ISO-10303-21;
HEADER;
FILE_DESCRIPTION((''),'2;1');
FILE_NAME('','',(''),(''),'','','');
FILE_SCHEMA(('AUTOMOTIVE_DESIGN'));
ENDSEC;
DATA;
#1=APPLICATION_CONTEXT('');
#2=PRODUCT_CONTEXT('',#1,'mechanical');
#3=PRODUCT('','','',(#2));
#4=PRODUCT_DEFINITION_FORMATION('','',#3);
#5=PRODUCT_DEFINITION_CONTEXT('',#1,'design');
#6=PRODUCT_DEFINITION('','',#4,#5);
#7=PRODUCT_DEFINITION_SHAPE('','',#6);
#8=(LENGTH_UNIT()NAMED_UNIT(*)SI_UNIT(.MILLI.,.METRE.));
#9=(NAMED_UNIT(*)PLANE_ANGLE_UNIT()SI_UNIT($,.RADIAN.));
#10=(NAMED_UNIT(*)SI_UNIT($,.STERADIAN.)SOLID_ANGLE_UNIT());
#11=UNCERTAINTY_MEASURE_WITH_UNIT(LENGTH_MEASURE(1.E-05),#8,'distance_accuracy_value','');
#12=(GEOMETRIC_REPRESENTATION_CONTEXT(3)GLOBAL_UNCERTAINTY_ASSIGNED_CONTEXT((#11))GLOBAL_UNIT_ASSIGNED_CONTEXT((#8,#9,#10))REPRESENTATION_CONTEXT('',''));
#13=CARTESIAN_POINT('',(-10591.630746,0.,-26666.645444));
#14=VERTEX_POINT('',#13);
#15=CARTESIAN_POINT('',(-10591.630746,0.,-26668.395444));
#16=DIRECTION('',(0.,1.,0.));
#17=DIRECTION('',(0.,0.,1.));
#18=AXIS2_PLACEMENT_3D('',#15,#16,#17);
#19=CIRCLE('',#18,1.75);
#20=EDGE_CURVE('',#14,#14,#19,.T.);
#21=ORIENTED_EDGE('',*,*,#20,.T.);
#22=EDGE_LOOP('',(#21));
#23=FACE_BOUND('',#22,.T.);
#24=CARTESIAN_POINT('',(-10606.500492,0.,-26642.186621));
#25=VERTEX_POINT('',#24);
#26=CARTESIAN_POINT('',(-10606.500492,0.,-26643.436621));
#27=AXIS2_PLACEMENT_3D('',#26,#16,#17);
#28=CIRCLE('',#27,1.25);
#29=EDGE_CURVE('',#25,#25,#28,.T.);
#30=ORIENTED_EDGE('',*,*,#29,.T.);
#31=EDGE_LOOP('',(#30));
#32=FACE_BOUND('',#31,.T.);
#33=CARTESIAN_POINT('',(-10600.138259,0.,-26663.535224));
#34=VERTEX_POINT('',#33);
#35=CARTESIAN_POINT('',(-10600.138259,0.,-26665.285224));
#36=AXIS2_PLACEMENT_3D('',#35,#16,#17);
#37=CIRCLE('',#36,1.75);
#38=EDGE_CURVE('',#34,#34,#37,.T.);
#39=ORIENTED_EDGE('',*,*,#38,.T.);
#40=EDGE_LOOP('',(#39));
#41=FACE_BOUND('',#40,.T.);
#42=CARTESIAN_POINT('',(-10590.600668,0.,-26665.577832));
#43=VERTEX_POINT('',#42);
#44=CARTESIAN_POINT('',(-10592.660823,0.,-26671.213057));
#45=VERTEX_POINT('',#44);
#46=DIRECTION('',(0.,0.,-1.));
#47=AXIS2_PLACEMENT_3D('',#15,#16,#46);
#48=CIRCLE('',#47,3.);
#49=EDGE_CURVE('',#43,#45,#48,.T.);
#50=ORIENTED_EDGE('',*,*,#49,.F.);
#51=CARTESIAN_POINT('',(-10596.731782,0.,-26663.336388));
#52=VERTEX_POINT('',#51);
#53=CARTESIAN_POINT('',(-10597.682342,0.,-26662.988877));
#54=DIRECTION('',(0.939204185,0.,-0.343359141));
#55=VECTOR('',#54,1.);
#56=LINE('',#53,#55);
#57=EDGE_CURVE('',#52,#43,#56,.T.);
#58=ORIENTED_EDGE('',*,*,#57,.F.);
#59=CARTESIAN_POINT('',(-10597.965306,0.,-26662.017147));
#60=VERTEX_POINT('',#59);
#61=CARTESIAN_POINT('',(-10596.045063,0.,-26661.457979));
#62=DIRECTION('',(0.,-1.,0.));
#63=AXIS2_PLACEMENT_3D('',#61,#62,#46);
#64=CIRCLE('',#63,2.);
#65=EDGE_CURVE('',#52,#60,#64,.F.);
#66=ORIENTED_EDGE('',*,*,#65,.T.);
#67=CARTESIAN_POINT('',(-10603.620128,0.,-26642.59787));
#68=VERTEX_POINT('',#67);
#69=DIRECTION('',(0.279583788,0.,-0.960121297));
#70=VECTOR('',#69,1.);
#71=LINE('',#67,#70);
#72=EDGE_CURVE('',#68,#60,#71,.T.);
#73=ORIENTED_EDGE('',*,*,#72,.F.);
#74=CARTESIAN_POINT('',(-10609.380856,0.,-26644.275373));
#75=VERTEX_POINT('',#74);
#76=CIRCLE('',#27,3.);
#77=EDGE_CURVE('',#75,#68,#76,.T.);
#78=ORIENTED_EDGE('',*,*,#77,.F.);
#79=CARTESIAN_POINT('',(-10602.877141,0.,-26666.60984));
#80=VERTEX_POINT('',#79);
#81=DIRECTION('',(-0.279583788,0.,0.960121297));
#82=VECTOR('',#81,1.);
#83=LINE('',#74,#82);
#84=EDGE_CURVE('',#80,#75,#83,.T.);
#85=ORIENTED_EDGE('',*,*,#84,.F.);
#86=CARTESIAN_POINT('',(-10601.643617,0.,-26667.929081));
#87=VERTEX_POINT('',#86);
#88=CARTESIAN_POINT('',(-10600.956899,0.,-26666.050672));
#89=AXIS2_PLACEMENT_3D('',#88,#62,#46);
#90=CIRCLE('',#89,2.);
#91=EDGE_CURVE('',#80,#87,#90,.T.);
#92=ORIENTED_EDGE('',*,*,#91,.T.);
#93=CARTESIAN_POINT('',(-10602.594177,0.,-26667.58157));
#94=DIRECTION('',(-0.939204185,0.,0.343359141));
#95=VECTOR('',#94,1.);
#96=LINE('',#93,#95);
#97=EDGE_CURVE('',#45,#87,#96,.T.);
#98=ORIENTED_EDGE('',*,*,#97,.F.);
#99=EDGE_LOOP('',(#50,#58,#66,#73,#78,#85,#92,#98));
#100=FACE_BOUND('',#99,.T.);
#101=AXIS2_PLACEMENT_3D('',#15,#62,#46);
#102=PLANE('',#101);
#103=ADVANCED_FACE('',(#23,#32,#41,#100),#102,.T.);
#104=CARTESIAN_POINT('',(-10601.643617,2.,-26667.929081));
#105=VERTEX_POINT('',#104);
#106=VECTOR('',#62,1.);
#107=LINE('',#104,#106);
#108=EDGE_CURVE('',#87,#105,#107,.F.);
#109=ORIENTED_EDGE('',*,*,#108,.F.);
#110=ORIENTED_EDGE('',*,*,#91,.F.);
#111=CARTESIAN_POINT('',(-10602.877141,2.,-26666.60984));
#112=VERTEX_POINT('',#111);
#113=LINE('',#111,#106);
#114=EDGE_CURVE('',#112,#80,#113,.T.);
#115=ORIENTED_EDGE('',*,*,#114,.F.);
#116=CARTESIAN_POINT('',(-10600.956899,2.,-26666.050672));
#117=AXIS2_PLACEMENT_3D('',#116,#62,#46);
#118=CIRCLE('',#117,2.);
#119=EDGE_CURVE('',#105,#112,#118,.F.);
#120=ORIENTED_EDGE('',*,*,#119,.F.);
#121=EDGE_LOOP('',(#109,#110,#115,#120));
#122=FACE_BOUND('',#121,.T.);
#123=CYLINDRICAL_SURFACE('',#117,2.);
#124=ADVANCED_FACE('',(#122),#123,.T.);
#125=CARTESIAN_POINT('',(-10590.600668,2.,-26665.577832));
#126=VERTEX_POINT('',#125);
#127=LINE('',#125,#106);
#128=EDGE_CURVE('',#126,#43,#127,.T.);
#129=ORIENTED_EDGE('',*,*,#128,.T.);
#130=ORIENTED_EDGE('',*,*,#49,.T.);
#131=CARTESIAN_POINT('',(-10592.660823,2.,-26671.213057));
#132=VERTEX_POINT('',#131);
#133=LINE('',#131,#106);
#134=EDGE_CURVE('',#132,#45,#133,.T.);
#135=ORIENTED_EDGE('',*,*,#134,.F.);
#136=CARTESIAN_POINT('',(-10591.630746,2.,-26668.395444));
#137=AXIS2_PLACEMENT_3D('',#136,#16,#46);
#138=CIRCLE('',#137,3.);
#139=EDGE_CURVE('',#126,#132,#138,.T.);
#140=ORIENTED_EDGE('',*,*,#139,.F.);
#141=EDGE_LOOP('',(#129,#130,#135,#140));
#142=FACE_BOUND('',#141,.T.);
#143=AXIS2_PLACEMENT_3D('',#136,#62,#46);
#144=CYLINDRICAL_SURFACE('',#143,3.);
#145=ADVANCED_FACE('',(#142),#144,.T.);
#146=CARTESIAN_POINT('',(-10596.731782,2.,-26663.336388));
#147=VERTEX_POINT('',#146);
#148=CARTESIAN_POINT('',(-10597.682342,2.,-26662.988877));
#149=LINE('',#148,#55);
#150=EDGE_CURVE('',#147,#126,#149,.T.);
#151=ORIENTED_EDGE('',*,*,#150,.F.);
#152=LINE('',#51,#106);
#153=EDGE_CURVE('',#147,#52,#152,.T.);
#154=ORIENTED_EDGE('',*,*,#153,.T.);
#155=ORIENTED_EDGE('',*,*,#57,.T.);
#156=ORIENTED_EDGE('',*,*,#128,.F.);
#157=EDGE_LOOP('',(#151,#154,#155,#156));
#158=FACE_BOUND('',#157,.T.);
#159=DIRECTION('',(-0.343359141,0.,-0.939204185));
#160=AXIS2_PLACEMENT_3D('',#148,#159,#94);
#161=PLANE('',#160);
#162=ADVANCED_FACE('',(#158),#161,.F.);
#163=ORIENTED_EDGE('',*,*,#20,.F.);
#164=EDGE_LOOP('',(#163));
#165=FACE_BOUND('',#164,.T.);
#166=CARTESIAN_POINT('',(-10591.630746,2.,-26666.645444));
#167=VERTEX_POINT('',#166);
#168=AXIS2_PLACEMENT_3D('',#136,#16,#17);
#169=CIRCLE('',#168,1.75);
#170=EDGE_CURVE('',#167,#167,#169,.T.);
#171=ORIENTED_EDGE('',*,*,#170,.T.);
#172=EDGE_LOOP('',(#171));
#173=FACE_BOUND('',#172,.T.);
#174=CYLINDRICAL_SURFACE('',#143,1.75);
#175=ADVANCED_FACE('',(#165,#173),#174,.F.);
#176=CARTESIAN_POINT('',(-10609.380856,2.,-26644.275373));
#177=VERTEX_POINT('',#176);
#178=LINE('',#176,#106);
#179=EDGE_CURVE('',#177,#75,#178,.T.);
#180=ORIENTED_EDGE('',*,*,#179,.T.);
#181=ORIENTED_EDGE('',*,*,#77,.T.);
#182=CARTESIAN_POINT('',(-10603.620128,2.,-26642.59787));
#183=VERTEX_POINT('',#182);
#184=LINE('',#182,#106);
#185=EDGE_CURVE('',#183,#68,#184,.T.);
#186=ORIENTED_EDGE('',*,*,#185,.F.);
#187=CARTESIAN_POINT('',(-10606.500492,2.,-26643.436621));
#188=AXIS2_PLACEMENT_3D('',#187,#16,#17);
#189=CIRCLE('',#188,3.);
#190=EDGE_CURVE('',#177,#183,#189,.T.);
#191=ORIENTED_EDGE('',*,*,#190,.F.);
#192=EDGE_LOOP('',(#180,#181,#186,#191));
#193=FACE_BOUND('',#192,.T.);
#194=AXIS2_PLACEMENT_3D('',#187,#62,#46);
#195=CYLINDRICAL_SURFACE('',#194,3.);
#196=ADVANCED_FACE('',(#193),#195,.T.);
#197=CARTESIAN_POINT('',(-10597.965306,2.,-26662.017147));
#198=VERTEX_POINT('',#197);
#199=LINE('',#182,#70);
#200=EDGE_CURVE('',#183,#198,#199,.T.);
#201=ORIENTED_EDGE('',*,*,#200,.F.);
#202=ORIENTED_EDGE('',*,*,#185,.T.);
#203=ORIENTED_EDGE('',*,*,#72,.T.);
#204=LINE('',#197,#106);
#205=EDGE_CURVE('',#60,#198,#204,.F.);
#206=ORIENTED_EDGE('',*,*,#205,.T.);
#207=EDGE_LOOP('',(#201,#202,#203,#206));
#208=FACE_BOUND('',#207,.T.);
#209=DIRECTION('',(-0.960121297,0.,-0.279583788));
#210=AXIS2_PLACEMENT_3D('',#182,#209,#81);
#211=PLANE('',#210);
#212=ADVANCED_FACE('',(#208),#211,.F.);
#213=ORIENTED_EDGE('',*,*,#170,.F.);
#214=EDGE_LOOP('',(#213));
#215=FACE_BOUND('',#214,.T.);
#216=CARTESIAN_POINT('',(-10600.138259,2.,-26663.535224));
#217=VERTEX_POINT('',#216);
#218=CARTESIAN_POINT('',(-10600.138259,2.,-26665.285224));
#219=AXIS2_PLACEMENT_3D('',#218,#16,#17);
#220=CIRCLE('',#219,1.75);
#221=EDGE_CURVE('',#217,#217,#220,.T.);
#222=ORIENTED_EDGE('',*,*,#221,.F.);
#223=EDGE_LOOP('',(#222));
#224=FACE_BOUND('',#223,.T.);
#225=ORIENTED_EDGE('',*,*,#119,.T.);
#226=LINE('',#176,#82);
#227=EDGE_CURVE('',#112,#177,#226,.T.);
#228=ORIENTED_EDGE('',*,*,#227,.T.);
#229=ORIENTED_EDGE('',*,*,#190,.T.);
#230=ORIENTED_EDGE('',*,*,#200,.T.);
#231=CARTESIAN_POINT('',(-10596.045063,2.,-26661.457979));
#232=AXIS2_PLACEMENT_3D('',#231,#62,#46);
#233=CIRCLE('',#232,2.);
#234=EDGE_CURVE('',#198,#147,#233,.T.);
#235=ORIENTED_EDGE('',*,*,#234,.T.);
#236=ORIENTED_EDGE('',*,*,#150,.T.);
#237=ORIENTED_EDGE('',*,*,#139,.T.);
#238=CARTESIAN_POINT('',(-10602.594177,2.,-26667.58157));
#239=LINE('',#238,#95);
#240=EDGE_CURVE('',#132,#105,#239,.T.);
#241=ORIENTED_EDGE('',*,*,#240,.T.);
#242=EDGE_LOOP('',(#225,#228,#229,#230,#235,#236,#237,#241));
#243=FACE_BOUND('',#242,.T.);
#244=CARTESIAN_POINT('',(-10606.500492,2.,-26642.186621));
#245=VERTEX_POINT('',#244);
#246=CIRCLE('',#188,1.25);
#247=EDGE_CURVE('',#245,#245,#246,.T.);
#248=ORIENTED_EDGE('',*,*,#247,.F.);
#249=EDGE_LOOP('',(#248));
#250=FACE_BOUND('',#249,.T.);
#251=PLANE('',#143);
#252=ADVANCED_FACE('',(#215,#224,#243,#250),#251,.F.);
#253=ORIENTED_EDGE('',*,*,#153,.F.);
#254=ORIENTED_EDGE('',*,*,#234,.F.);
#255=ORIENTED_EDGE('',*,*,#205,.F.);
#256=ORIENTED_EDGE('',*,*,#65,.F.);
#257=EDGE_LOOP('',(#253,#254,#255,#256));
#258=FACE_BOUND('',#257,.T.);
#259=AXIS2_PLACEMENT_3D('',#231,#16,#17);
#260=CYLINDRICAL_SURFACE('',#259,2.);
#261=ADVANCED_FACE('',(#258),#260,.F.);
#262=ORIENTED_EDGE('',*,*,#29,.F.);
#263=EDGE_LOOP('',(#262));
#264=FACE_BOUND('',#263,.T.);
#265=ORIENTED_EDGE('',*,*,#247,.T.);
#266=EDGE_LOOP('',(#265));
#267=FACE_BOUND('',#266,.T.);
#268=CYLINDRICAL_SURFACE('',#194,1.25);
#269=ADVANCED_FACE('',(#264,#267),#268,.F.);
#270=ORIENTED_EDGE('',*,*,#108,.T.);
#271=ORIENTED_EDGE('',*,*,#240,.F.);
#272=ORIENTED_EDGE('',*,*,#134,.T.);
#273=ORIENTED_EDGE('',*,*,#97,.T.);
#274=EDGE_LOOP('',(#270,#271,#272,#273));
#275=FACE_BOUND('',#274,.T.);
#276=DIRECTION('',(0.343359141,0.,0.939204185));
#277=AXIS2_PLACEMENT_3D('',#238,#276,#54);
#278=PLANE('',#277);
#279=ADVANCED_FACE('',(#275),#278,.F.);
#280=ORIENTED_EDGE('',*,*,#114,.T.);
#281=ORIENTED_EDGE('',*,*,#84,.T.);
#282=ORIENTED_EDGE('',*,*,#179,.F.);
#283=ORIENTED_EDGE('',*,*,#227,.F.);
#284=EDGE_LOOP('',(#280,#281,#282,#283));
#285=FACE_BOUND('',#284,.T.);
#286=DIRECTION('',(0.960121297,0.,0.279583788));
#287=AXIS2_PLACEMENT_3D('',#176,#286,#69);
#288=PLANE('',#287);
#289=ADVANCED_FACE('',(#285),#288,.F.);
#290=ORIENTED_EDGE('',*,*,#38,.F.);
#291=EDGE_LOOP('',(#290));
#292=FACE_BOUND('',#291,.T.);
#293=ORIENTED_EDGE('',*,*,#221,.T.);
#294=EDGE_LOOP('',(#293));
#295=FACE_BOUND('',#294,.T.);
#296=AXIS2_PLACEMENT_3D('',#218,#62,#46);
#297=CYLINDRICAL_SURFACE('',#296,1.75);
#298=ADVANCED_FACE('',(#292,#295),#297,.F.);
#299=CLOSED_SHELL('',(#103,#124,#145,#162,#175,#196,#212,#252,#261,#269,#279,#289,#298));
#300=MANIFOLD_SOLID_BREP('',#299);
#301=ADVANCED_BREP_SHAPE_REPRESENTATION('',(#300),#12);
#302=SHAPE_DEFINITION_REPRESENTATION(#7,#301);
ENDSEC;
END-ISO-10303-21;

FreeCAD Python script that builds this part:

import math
import FreeCAD as App
import Part
import Sketcher
from FreeCAD import Vector


def edges_at(feature, points):
    """Names of the edges that pass closest to the given points."""
    edges = feature.Shape.Edges
    near = lambda p: min(range(len(edges)), key=lambda i: edges[i].distToShape(Part.Vertex(*p))[0])
    return sorted({f"Edge{near(p) + 1}" for p in points})

doc = App.newDocument("Part")
body = doc.addObject("PartDesign::Body", "Body")

# Sketch on XZ plane
sketch1 = body.newObject("Sketcher::SketchObject", "Sketch")
sketch1.AttachmentSupport = (doc.getObject("XZ_Plane"), [""])
sketch1.MapMode = "FlatFace"
sketch1.addGeometry([
    Part.LineSegment(Vector(-10602.594177, -26667.58157, 0), Vector(-10609.380856, -26644.275373, 0)),  # 0
    Part.ArcOfCircle(Part.Circle(Vector(-10606.500492, -26643.436621, 0), Vector(0, 0, 1), 3), math.radians(16.235365), math.radians(196.235365)),  # 1
    Part.LineSegment(Vector(-10603.620128, -26642.59787, 0), Vector(-10597.682342, -26662.988877, 0)),  # 2
    Part.LineSegment(Vector(-10597.682342, -26662.988877, 0), Vector(-10590.600668, -26665.577832, 0)),  # 3
    Part.ArcOfCircle(Part.Circle(Vector(-10591.630746, -26668.395444, 0), Vector(0, 0, 1), 3), math.radians(-110.081664), math.radians(69.918336)),  # 4
    Part.LineSegment(Vector(-10592.660823, -26671.213057, 0), Vector(-10602.594177, -26667.58157, 0)),  # 5
    Part.Circle(Vector(-10606.500492, -26643.436621, 0), Vector(0, 0, 1), 1.25),  # 6
    Part.Circle(Vector(-10591.630746, -26668.395444, 0), Vector(0, 0, 1), 1.75),  # 7
    Part.Circle(Vector(-10600.138259, -26665.285224, 0), Vector(0, 0, 1), 1.75),  # 8
], False)
sketch1.addConstraint([
    Sketcher.Constraint("Tangent", 0, 2, 1, 2),
    Sketcher.Constraint("Tangent", 1, 1, 2, 1),
    Sketcher.Constraint("Coincident", 2, 2, 3, 1),
    Sketcher.Constraint("Tangent", 3, 2, 4, 2),
    Sketcher.Constraint("Tangent", 4, 1, 5, 1),
    Sketcher.Constraint("Coincident", 5, 2, 0, 1),
    Sketcher.Constraint("Coincident", 6, 3, 1, 3),
    Sketcher.Constraint("Coincident", 7, 3, 4, 3),
    Sketcher.Constraint("Equal", 1, 4),
    Sketcher.Constraint("Equal", 7, 8),
    Sketcher.Constraint("Parallel", 0, 2),
    Sketcher.Constraint("Parallel", 3, 5),
    Sketcher.Constraint("Radius", 1, 3.0),
    Sketcher.Constraint("Diameter", 6, 2.5),
    Sketcher.Constraint("Diameter", 7, 3.5),
    Sketcher.Constraint("Distance", 0, 24.274222),
    Sketcher.Constraint("Distance", 2, 21.237949),
    Sketcher.Constraint("Distance", 3, 7.540079),
    Sketcher.Constraint("DistanceX", 1, 3, -1, 1, 10606.500492),
    Sketcher.Constraint("DistanceY", 1, 3, -1, 1, 26643.436621),
    Sketcher.Constraint("DistanceX", 8, 3, -1, 1, 10600.138259),
    Sketcher.Constraint("DistanceY", 1, 1, -1, 1, 26642.59787),
    Sketcher.Constraint("DistanceY", 4, 3, 8, 3, 3.110221),
])
pad1 = body.newObject("PartDesign::Pad", "Pad")
pad1.Profile = sketch1
pad1.Length = 2
pad1.Reversed = True
doc.recompute()

fillet = body.newObject("PartDesign::Fillet", "Fillet")
fillet.Base = (pad1, edges_at(pad1, [(-10597.682, 1, -26662.989), (-10602.594, 1, -26667.582)]))
fillet.Radius = 2

doc.recompute()
